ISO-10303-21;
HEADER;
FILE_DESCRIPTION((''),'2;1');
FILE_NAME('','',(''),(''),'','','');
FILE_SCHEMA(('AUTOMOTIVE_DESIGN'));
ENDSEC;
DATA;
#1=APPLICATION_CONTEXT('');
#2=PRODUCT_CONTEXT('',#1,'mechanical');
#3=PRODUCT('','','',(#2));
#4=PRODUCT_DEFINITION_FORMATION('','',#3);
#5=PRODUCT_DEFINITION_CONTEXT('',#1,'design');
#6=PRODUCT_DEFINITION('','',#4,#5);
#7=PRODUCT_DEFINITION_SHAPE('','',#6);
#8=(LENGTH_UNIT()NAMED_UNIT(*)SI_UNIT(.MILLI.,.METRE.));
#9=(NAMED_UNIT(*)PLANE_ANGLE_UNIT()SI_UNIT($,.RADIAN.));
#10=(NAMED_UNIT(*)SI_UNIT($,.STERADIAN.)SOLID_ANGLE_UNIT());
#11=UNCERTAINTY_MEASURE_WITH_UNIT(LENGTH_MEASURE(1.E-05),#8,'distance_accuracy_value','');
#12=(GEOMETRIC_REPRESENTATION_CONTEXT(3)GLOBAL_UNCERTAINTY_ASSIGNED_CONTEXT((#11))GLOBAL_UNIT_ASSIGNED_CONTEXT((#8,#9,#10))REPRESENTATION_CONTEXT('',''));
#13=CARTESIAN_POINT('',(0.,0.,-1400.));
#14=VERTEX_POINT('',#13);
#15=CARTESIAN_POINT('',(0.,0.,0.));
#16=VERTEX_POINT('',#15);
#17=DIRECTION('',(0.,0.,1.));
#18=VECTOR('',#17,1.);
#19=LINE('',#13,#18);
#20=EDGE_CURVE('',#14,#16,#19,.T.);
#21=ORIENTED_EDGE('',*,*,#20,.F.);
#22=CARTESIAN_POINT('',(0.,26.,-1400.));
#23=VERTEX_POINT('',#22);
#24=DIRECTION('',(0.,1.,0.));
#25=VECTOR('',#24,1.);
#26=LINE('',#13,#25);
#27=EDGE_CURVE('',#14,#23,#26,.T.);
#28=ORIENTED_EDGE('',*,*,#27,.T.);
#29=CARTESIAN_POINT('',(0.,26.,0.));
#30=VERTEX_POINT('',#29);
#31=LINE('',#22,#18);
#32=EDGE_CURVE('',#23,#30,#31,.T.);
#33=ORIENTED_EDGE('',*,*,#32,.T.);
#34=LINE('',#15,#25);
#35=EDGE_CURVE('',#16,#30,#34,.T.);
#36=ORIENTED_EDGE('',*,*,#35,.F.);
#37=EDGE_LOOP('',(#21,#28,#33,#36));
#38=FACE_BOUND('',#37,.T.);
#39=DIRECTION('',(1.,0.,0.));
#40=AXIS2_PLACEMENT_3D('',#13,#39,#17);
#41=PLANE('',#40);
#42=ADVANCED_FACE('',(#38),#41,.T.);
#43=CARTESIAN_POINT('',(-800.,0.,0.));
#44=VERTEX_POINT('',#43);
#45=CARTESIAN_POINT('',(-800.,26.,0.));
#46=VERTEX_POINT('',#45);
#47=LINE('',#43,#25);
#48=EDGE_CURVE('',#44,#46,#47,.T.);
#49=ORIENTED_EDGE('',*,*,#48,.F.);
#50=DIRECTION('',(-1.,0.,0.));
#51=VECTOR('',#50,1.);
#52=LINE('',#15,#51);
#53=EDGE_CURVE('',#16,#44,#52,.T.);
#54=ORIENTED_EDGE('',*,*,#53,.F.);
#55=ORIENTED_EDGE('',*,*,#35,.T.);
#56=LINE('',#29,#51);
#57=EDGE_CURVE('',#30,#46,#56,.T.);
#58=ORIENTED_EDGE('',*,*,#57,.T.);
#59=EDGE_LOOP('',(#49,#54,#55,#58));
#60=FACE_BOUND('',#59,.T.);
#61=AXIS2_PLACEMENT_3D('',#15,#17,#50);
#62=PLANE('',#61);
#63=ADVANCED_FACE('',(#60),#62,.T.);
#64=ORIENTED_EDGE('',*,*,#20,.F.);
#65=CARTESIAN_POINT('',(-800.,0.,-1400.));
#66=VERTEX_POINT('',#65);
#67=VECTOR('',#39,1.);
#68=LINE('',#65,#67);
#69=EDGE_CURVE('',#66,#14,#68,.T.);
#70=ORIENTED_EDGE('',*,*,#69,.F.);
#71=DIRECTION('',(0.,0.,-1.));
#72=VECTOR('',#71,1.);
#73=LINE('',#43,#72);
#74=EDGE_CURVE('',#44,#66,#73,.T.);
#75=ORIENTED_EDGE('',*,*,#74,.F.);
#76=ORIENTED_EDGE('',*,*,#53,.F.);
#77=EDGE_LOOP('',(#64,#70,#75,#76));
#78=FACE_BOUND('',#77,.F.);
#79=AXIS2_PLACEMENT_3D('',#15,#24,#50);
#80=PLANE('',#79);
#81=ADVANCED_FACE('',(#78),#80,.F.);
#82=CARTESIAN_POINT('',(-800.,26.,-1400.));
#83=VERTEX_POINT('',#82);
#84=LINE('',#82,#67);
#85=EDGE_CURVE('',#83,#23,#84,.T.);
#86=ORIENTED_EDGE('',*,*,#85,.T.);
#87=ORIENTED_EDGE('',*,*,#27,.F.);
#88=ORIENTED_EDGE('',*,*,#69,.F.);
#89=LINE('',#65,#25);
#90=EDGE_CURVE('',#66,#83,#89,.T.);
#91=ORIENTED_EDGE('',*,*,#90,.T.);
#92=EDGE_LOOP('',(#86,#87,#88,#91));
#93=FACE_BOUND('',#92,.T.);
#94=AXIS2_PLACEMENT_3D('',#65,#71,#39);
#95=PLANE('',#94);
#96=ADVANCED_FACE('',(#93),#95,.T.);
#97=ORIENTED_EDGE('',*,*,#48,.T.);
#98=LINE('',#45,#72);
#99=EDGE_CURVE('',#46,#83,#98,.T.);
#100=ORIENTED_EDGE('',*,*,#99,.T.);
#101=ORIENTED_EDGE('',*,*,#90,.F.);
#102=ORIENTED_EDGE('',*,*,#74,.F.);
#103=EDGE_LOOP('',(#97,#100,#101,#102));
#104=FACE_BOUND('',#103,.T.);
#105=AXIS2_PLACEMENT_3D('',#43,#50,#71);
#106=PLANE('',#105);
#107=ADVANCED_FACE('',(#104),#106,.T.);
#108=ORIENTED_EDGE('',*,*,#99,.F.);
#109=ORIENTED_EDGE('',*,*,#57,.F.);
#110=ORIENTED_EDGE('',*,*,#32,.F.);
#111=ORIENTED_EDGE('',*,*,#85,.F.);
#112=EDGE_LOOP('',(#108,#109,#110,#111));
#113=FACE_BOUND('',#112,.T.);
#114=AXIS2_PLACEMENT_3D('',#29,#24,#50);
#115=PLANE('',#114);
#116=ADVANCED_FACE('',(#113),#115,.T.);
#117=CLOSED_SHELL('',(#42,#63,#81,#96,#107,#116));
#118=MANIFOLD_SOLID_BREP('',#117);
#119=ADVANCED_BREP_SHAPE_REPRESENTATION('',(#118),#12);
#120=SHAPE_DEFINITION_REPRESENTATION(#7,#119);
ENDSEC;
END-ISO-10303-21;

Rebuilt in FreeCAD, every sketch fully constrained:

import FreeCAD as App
import Part
import Sketcher

V = App.Vector

doc = App.newDocument("Part")
body = doc.addObject("PartDesign::Body", "Body")

# Sketch on XZ plane
sketch1 = body.newObject("Sketcher::SketchObject", "Sketch")
sketch1.AttachmentSupport = (doc.getObject("XZ_Plane"), [""])
sketch1.MapMode = "FlatFace"
sketch1.addGeometry(Part.LineSegment(V(-800, 0, 0), V(0, 0, 0)), False)
sketch1.addGeometry(Part.LineSegment(V(0, 0, 0), V(0, -1400, 0)), False)
sketch1.addGeometry(Part.LineSegment(V(0, -1400, 0), V(-800, -1400, 0)), False)
sketch1.addGeometry(Part.LineSegment(V(-800, -1400, 0), V(-800, 0, 0)), False)
sketch1.addConstraint(Sketcher.Constraint("Coincident", 0, 2, 1, 1))
sketch1.addConstraint(Sketcher.Constraint("Coincident", 1, 2, 2, 1))
sketch1.addConstraint(Sketcher.Constraint("Coincident", 2, 2, 3, 1))
sketch1.addConstraint(Sketcher.Constraint("Coincident", 3, 2, 0, 1))
sketch1.addConstraint(Sketcher.Constraint("Horizontal", 0))
sketch1.addConstraint(Sketcher.Constraint("Vertical", 1))
sketch1.addConstraint(Sketcher.Constraint("Horizontal", 2))
sketch1.addConstraint(Sketcher.Constraint("Vertical", 3))
sketch1.addConstraint(Sketcher.Constraint("Coincident", 0, 2, -1, 1))
sketch1.addConstraint(Sketcher.Constraint("DistanceX", 0, 1, 0, 2, 800.0))
sketch1.addConstraint(Sketcher.Constraint("DistanceY", 1, 2, 1, 1, 1400.0))
pad1 = body.newObject("PartDesign::Pad", "Pad")
pad1.Profile = sketch1
pad1.Length = 26
pad1.Reversed = True

doc.recompute()
